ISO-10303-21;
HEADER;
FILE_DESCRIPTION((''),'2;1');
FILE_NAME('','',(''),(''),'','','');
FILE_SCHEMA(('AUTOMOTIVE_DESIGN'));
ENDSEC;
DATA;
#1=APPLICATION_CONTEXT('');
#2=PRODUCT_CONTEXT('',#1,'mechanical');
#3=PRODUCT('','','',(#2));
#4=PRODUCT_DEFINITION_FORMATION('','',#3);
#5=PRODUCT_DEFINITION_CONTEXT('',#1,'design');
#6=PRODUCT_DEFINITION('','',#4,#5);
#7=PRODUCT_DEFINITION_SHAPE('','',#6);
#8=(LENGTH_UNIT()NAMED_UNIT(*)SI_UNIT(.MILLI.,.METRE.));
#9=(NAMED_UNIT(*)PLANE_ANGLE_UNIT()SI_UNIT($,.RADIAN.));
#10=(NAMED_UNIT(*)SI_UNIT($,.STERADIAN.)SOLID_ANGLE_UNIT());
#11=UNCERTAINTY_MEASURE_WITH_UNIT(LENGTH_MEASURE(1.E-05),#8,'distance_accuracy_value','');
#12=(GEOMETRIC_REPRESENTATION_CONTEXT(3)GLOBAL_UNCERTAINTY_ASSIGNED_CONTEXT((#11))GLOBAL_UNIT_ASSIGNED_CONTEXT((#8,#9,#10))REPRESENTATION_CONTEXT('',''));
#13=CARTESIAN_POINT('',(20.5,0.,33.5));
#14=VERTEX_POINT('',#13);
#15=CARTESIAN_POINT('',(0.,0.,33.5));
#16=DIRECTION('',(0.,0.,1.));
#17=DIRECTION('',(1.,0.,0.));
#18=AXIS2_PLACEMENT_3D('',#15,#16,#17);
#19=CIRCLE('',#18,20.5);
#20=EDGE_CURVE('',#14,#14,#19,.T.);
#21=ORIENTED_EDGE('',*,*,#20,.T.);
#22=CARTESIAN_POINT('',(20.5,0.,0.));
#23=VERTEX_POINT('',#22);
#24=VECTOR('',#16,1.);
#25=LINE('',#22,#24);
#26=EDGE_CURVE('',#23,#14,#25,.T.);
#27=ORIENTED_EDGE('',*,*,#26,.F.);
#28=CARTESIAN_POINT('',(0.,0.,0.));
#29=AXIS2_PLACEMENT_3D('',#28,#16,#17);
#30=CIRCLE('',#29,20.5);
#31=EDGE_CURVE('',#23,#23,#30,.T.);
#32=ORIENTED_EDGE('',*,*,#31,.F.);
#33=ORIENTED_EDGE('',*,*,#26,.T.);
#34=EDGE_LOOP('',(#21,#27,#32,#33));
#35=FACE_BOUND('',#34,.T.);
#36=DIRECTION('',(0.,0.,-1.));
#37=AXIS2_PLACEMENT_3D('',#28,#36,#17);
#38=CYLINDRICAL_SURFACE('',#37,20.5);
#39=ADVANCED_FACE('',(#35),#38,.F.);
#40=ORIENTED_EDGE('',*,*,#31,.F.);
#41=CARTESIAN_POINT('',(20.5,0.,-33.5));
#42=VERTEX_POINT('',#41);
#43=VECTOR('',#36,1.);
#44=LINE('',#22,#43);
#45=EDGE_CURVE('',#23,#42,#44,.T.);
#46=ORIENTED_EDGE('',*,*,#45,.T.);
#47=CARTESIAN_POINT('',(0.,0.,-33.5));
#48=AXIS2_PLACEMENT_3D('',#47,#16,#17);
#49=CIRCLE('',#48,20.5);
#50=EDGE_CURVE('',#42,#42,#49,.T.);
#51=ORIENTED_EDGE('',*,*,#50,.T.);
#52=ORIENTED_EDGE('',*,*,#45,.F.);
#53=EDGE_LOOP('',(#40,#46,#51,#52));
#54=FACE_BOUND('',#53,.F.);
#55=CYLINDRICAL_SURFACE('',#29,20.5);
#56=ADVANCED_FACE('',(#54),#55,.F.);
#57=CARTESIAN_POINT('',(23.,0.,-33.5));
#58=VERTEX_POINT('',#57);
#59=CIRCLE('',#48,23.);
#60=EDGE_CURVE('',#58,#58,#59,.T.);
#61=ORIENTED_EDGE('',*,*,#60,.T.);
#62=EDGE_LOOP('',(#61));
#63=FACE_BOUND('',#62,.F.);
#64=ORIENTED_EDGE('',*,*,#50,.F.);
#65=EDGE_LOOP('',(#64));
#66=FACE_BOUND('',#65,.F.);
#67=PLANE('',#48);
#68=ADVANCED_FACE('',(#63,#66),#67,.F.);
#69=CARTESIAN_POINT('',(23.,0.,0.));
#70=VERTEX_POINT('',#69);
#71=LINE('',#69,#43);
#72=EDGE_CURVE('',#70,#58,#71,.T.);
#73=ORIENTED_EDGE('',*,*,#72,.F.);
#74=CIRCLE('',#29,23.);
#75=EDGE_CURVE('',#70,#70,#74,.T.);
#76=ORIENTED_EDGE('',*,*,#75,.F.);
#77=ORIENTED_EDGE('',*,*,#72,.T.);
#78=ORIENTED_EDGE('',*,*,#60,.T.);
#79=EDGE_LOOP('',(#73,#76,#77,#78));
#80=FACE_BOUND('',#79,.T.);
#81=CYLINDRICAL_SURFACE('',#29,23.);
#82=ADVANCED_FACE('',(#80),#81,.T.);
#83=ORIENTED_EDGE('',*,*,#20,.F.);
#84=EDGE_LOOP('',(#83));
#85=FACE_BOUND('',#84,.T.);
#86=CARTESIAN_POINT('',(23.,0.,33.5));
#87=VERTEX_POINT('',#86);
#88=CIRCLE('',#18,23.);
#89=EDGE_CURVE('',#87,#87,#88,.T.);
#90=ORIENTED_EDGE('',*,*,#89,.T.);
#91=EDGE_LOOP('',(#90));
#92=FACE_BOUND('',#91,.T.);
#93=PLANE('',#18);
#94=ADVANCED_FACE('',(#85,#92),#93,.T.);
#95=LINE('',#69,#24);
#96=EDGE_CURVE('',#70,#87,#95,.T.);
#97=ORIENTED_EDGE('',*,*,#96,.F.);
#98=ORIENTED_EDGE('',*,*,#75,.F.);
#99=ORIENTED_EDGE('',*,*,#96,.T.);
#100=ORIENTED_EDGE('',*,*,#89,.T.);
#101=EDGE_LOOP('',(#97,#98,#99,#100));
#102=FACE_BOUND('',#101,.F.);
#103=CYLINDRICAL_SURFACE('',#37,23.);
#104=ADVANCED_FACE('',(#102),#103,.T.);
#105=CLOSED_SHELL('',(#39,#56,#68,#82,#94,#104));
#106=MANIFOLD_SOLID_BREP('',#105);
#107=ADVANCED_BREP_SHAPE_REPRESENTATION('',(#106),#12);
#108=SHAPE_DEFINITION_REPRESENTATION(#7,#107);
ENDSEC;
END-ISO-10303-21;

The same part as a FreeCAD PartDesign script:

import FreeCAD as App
import Part
import Sketcher

V = App.Vector

doc = App.newDocument("Part")
body = doc.addObject("PartDesign::Body", "Body")

sketch1 = doc.addObject("Sketcher::SketchObject", "Sketch")
body.addObject(sketch1)
sketch1.AttachmentSupport = (doc.XY_Plane, [""])
sketch1.MapMode = "FlatFace"
sketch1.addGeometry(Part.Circle(V(0, 0, 0), V(0, 0, 1), 23), False)
sketch1.addGeometry(Part.Circle(V(0, 0, 0), V(0, 0, 1), 20), False)
sketch1.addConstraint(Sketcher.Constraint("Coincident", 0, 3, -1, 1))
sketch1.addConstraint(Sketcher.Constraint("Coincident", 1, 3, -1, 1))
sketch1.addConstraint(Sketcher.Constraint("Diameter", 0, 46.0))
sketch1.addConstraint(Sketcher.Constraint("Diameter", 1, 41.0))
pad1 = doc.addObject("PartDesign::Pad", "Pad")
body.addObject(pad1)
pad1.Profile = sketch1
pad1.Length = 67
pad1.Midplane = True

doc.recompute()
